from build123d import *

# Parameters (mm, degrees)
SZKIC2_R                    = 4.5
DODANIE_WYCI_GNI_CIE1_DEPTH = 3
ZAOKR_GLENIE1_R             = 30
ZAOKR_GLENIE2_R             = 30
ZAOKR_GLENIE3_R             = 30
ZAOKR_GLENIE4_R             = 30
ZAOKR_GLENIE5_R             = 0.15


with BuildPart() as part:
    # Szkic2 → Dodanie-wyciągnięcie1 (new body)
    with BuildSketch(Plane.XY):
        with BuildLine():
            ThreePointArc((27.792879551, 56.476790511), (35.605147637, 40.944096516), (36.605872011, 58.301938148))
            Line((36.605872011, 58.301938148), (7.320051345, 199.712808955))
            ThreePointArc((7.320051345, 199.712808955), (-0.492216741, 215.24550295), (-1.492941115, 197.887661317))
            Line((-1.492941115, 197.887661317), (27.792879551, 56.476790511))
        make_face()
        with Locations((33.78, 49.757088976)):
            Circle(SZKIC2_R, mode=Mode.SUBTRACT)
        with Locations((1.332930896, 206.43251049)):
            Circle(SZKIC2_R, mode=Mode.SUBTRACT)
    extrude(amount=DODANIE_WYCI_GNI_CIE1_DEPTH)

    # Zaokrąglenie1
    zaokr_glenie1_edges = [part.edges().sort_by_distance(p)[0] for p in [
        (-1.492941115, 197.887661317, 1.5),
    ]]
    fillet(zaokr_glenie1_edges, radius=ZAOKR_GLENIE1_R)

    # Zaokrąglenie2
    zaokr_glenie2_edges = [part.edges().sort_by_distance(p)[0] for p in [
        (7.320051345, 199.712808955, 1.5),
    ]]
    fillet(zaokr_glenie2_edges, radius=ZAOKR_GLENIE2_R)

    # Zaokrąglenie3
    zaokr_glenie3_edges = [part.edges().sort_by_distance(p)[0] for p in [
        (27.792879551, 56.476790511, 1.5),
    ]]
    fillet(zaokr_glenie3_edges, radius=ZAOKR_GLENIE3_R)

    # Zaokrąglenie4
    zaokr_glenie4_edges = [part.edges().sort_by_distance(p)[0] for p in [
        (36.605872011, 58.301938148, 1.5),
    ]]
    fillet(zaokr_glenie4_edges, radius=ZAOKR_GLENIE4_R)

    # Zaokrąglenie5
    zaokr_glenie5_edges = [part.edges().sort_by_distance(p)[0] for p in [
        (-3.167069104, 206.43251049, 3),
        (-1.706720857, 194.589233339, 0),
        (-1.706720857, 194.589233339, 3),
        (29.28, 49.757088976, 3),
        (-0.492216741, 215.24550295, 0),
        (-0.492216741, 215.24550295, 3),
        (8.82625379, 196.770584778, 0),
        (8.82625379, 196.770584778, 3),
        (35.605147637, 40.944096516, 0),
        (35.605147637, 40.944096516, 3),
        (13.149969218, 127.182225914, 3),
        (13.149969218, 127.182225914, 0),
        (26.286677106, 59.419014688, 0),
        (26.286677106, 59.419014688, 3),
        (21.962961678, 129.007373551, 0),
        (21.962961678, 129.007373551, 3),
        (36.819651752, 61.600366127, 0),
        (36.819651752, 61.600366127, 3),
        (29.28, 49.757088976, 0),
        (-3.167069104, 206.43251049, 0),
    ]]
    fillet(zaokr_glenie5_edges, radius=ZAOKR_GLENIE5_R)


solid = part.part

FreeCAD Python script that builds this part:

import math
import FreeCAD as App
import Part
import Sketcher
from FreeCAD import Vector


def edges_at(feature, points):
    """Names of the edges that pass closest to the given points."""
    edges = feature.Shape.Edges
    near = lambda p: min(range(len(edges)), key=lambda i: edges[i].distToShape(Part.Vertex(*p))[0])
    return sorted({f"Edge{near(p) + 1}" for p in points})

doc = App.newDocument("Part")
body = doc.addObject("PartDesign::Body", "Body")

sketch1 = body.newObject("Sketcher::SketchObject", "Sketch")
sketch1.AttachmentSupport = (doc.getObject("XY_Plane"), [""])
sketch1.MapMode = "FlatFace"
sketch1.addGeometry([
    Part.ArcOfCircle(Part.Circle(Vector(33.8, 49.8, 0), Vector(0, 0, 1), 9), math.radians(132), math.radians(432)),
    Part.LineSegment(Vector(36.6, 58.3, 0), Vector(7.3, 199.7, 0)),
    Part.ArcOfCircle(Part.Circle(Vector(1.3, 206.4, 0), Vector(0, 0, 1), 9), math.radians(-48), math.radians(252)),
    Part.LineSegment(Vector(-1.5, 197.9, 0), Vector(27.8, 56.5, 0)),
    Part.Circle(Vector(33.8, 49.8, 0), Vector(0, 0, 1), 4.5),
    Part.Circle(Vector(1.3, 206.4, 0), Vector(0, 0, 1), 4.5),
], False)
sketch1.addConstraint([
    Sketcher.Constraint("Coincident", 0, 2, 1, 1),
    Sketcher.Constraint("Coincident", 1, 2, 2, 1),
    Sketcher.Constraint("Coincident", 2, 2, 3, 1),
    Sketcher.Constraint("Coincident", 3, 2, 0, 1),
    Sketcher.Constraint("Coincident", 4, 3, 0, 3),
    Sketcher.Constraint("Coincident", 5, 3, 2, 3),
    Sketcher.Constraint("Equal", 0, 2),
    Sketcher.Constraint("Equal", 4, 5),
    Sketcher.Constraint("Parallel", 1, 3),
    Sketcher.Constraint("Equal", 1, 3),
    Sketcher.Constraint("Diameter", 4, 9.0),
    Sketcher.Constraint("Radius", 0, 9.0),
    Sketcher.Constraint("DistanceX", -1, 1, 0, 3, 33.78),
    Sketcher.Constraint("DistanceY", 1, 2, 5, 3, 6.719702),
    Sketcher.Constraint("DistanceY", -1, 1, 0, 3, 49.757089),
    Sketcher.Constraint("DistanceX", -1, 1, 2, 3, 1.332931),
    Sketcher.Constraint("DistanceY", -1, 1, 2, 3, 206.43251),
    Sketcher.Constraint("DistanceY", -1, 1, 0, 2, 58.301938),
])
pad1 = body.newObject("PartDesign::Pad", "Pad")
pad1.Profile = sketch1
pad1.Length = 3
doc.recompute()

fillet = body.newObject("PartDesign::Fillet", "Fillet")
fillet.Base = (pad1, edges_at(pad1, [(-1.493, 197.888, 1.5)]))
fillet.Radius = 30
doc.recompute()

fillet2 = body.newObject("PartDesign::Fillet", "Fillet001")
fillet2.Base = (fillet, edges_at(fillet, [(7.32, 199.713, 1.5)]))
fillet2.Radius = 30
doc.recompute()

fillet3 = body.newObject("PartDesign::Fillet", "Fillet002")
fillet3.Base = (fillet2, edges_at(fillet2, [(27.793, 56.477, 1.5)]))
fillet3.Radius = 30
doc.recompute()

fillet4 = body.newObject("PartDesign::Fillet", "Fillet003")
fillet4.Base = (fillet3, edges_at(fillet3, [(36.606, 58.302, 1.5)]))
fillet4.Radius = 30
doc.recompute()

fillet5 = body.newObject("PartDesign::Fillet", "Fillet004")
fillet5.Base = (fillet4, edges_at(fillet4, [
    (-3.167, 206.433, 3),
    (-1.707, 194.589, 0),
    (-1.707, 194.589, 3),
    (29.28, 49.757, 3),
    (-0.492, 215.246, 0),
    (-0.492, 215.246, 3),
    (8.826, 196.771, 0),
    (8.826, 196.771, 3),
    (35.605, 40.944, 0),
    (35.605, 40.944, 3),
    (13.15, 127.182, 3),
    (13.15, 127.182, 0),
    (26.287, 59.419, 0),
    (26.287, 59.419, 3),
    (21.963, 129.007, 0),
    (21.963, 129.007, 3),
    (36.82, 61.6, 0),
    (36.82, 61.6, 3),
    (29.28, 49.757, 0),
    (-3.167, 206.433, 0),
]))
fillet5.Radius = 0.15

doc.recompute()
